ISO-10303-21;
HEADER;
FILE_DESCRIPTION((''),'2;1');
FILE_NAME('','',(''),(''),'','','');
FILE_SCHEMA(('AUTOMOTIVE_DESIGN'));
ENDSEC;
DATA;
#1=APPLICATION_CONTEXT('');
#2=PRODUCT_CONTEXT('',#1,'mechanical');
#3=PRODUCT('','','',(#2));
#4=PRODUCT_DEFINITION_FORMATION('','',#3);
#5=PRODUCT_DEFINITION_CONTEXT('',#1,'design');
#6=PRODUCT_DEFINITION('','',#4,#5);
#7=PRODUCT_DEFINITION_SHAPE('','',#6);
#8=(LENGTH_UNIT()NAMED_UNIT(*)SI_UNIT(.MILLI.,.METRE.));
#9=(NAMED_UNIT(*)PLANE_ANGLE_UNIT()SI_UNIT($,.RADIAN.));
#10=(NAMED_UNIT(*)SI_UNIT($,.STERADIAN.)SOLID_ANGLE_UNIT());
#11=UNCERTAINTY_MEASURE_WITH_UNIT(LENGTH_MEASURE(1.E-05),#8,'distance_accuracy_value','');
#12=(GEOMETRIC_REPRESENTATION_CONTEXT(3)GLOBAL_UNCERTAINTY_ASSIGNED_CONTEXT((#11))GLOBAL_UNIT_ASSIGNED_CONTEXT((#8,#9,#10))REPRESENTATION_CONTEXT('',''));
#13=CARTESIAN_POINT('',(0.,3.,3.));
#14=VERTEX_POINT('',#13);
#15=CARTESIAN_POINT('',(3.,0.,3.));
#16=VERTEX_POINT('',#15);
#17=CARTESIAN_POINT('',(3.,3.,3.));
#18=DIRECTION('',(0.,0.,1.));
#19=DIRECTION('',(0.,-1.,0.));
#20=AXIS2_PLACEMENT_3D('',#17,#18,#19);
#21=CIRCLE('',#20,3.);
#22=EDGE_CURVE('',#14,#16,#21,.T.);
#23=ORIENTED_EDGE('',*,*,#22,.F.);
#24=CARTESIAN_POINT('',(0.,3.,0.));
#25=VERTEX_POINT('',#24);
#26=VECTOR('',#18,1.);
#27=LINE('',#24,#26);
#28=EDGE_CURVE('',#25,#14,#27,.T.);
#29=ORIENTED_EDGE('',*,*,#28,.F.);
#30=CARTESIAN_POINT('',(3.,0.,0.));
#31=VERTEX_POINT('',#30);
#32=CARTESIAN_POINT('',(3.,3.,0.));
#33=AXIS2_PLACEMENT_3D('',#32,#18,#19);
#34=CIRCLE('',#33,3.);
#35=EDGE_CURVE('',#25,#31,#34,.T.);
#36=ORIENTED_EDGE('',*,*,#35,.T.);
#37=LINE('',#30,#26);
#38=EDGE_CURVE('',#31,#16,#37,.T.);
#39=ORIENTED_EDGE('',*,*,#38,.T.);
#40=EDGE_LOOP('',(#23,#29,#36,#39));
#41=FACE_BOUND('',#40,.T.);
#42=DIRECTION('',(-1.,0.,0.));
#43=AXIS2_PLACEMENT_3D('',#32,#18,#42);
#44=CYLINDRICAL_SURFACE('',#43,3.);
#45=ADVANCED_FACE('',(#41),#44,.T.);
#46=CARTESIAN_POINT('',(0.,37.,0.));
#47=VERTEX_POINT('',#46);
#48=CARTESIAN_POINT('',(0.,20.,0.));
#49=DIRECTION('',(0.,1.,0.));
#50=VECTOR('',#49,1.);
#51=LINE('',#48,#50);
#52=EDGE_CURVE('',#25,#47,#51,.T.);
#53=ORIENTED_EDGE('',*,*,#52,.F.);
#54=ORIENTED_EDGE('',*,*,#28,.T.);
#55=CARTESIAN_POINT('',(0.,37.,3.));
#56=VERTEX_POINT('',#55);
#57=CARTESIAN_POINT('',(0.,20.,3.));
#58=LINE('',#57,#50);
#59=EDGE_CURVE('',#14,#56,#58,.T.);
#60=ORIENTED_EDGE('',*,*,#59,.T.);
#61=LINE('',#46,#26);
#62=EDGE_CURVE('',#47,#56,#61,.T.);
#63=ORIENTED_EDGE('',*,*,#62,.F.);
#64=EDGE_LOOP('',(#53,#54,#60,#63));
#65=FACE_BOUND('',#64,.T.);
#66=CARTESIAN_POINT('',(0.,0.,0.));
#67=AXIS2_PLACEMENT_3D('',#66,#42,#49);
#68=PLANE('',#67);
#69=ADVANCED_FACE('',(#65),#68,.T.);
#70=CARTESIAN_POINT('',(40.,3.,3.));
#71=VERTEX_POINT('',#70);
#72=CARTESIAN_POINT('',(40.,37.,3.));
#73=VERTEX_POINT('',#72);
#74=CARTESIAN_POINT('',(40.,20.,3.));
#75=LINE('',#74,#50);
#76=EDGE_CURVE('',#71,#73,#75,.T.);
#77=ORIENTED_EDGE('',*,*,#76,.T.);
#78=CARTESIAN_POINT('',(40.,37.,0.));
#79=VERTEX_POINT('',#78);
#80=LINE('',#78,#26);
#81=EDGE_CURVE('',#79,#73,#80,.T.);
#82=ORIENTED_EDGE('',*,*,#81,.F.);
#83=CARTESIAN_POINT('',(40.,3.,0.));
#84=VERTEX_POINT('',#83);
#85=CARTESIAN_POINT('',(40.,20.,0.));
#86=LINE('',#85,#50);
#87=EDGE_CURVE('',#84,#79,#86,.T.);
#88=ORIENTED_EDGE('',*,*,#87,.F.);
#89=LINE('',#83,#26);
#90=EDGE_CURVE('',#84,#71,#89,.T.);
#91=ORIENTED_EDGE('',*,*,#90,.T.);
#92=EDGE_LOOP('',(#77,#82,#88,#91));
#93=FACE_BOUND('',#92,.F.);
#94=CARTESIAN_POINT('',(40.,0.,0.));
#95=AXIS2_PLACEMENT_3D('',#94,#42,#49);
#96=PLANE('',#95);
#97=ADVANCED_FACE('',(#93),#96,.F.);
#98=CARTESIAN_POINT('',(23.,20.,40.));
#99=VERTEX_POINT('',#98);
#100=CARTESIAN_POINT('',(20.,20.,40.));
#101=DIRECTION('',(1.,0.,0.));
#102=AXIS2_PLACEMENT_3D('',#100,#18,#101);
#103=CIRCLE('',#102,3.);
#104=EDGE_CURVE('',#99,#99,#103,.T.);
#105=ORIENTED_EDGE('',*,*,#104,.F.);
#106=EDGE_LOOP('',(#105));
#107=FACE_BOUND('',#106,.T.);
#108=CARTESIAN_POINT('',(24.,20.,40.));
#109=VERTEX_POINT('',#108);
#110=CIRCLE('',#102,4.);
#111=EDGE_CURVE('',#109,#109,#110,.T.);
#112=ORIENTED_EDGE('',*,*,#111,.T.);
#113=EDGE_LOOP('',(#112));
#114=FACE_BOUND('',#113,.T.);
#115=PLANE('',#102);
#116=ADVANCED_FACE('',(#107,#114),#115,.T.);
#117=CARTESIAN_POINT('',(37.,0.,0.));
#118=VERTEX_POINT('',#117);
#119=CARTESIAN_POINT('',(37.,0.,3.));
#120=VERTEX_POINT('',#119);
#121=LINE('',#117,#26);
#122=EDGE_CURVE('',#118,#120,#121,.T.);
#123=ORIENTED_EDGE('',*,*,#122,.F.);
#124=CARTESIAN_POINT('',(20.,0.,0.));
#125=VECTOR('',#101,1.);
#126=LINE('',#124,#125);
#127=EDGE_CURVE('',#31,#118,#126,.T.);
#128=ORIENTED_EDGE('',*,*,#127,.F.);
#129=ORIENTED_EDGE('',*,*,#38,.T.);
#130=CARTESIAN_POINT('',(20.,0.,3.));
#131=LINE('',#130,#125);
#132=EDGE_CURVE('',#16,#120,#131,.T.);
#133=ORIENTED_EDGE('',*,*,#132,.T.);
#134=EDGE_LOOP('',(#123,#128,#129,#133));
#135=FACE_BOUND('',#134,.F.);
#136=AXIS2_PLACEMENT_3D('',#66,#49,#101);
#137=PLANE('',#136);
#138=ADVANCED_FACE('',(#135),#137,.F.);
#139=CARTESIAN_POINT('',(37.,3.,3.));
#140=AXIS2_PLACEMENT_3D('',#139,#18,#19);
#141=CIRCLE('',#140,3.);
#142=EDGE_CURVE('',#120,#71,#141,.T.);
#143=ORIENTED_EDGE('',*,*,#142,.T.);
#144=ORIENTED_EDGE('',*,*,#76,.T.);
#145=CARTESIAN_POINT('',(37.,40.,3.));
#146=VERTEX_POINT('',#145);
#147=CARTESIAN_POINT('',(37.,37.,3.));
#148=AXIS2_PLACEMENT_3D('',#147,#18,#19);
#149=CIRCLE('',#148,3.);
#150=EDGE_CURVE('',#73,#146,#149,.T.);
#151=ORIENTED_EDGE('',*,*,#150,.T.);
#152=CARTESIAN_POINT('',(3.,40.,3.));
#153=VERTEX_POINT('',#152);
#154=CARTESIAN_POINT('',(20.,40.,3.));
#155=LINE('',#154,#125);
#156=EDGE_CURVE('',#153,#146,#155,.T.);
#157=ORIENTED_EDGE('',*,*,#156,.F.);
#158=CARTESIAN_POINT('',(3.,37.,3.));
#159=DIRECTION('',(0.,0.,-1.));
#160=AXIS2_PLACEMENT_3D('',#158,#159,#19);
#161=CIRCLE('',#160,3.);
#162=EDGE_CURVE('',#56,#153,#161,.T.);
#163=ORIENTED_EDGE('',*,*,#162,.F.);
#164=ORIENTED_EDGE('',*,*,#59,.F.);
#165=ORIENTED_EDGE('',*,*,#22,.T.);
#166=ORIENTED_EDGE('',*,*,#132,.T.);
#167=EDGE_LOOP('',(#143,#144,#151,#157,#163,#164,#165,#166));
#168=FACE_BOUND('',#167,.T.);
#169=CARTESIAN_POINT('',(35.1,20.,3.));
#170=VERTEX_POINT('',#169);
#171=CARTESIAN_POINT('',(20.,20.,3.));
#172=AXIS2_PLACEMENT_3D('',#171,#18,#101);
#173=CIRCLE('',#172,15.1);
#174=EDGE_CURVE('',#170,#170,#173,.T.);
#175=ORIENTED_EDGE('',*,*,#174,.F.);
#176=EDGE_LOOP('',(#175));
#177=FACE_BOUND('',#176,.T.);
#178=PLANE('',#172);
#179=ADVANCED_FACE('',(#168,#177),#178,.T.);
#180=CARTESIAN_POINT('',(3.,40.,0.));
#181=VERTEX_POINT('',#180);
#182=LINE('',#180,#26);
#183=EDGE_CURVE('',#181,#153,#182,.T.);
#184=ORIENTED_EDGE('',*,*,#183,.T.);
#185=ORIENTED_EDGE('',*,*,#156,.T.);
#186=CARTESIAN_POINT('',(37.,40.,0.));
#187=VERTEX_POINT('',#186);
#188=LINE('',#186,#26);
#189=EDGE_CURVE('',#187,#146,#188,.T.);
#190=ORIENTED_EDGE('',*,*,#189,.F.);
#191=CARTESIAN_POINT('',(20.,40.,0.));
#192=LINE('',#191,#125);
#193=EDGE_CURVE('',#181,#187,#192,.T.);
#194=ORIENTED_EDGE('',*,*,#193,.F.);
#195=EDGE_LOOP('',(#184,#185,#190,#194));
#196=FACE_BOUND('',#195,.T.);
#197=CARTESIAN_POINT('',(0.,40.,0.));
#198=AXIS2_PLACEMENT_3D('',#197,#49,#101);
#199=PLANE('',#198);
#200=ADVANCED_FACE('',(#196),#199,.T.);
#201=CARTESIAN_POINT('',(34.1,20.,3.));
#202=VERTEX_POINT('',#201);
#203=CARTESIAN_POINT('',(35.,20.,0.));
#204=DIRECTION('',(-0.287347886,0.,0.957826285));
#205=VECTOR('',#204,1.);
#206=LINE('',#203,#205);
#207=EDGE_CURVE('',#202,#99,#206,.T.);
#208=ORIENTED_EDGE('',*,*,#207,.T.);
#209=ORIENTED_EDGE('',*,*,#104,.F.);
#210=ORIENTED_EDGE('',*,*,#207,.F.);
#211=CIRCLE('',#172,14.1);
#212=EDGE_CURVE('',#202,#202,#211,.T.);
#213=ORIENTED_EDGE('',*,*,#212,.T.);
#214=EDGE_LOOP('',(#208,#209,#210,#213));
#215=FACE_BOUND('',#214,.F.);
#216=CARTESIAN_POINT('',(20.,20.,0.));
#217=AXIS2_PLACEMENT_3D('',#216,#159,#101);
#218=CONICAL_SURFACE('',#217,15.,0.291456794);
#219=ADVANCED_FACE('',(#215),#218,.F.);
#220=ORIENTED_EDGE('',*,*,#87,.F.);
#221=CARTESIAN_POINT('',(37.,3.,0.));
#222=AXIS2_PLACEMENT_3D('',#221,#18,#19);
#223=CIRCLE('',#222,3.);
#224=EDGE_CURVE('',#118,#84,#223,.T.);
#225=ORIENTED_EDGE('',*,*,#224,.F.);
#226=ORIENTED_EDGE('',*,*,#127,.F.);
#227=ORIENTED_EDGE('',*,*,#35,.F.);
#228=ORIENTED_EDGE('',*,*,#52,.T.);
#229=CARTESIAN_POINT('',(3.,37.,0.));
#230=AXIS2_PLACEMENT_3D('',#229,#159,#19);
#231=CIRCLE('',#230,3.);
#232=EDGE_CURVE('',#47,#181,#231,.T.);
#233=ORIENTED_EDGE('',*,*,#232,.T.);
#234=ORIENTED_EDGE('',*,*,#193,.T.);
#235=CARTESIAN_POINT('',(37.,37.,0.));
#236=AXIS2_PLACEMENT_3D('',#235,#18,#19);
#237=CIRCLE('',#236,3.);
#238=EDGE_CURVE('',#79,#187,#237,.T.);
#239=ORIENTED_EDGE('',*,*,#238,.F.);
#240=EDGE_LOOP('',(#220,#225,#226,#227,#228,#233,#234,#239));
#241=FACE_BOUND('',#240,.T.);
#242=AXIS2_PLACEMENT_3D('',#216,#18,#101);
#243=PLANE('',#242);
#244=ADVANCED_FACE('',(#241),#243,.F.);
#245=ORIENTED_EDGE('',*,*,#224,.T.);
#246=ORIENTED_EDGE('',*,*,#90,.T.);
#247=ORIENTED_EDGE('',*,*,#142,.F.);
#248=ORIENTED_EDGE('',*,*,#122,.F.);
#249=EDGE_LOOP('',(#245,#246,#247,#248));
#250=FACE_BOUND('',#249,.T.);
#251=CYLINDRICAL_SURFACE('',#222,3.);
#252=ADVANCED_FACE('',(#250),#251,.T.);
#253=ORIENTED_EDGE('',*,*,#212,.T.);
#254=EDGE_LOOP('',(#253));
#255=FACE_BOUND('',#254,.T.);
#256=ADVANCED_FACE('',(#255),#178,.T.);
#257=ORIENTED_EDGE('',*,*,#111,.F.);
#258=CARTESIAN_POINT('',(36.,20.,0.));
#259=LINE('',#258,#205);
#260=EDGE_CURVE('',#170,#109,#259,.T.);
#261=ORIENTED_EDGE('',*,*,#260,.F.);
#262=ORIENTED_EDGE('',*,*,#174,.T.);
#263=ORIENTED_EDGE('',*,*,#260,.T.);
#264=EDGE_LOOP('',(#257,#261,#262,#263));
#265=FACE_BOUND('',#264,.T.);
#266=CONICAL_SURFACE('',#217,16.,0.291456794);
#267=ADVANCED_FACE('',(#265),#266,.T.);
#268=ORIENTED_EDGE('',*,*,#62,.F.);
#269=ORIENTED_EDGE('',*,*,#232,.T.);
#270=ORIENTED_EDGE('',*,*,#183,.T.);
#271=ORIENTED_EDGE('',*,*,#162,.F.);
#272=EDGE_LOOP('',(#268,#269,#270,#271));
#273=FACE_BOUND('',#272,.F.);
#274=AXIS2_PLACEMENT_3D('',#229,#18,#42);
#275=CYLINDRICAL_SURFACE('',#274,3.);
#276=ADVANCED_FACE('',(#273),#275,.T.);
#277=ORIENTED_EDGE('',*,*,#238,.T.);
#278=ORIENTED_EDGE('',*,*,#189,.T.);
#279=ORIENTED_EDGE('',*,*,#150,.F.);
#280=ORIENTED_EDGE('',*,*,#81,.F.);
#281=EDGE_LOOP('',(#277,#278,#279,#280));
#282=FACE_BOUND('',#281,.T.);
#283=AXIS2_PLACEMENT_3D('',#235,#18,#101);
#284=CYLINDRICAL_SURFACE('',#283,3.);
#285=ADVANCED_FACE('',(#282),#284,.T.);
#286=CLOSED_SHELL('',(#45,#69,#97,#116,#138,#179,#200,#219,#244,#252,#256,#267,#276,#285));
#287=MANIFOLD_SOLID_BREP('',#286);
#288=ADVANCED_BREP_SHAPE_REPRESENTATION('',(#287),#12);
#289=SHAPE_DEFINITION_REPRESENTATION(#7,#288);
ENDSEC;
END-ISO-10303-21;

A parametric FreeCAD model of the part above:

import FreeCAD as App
import Part
import Sketcher

V = App.Vector
Q = App.Units.Quantity


def edges_at(feature, points):
    """Names of the edges that pass closest to the given points."""
    edges = feature.Shape.Edges
    near = lambda p: min(range(len(edges)), key=lambda i: edges[i].distToShape(Part.Vertex(*p))[0])
    return sorted({f"Edge{near(p) + 1}" for p in points})


def add_polygon(sketch, points):
    """Adds a closed chain of lines whose ends are joined by coincident constraints."""
    first, n = sketch.GeometryCount, len(points)
    for a, b in zip(points, points[1:] + points[:1]):
        sketch.addGeometry(Part.LineSegment(App.Vector(*a, 0), App.Vector(*b, 0)), False)
    for i in range(n):
        sketch.addConstraint(Sketcher.Constraint("Coincident", first + i, 2, first + (i + 1) % n, 1))

doc = App.newDocument("Part")
params = doc.addObject("Spreadsheet::Sheet", "Params")
for row, (alias, value) in enumerate([
    ("sketch1_width", "15 mm"),
    ("sketch1_width2", "3 mm"),
    ("sketch1_height", "40 mm"),
    ("revolution_angle", "360 deg"),
    ("sketch2_width", "16 mm"),
    ("sketch2_width2", "4 mm"),
    ("sketch2_height", "40 mm"),
    ("revolution2_angle", "360 deg"),
    ("sketch3_width", "40 mm"),
    ("pad1_length", "3 mm"),
    ("fillet_radius", "3 mm"),
], start=1):
    params.set(f"A{row}", alias)
    params.set(f"B{row}", "=" + value)
    params.setAlias(f"B{row}", alias)

body = doc.addObject("PartDesign::Body", "Body")

# Sketch on XZ plane
sketch1 = body.newObject("Sketcher::SketchObject", "Sketch")
sketch1.AttachmentSupport = (doc.getObject("XZ_Plane"), [""])
sketch1.MapMode = "FlatFace"
add_polygon(sketch1, [(0, 0), (15, 0), (3, 40), (0, 40)])  # lines 0-3
sketch1.addConstraint([
    Sketcher.Constraint("Horizontal", 0),
    Sketcher.Constraint("Horizontal", 2),
    Sketcher.Constraint("Vertical", 3),
    Sketcher.Constraint("Coincident", 3, 2, -1, 1),
    Sketcher.Constraint("DistanceX", 0, 1, 0, 2, Q("15 mm")),
    Sketcher.Constraint("DistanceX", 2, 2, 2, 1, Q("3 mm")),
    Sketcher.Constraint("DistanceY", 3, 2, 3, 1, Q("40 mm")),
])
sketch1.setExpression("Constraints[8]", "Params.sketch1_width")
sketch1.setExpression("Constraints[9]", "Params.sketch1_width2")
sketch1.setExpression("Constraints[10]", "Params.sketch1_height")
revolution = body.newObject("PartDesign::Revolution", "Revolution")
revolution.Profile = sketch1
revolution.ReferenceAxis = (sketch1, ["V_Axis"])
revolution.setExpression("Angle", "Params.revolution_angle")
body2 = doc.addObject("PartDesign::Body", "Body001")

# Sketch on XZ plane
sketch2 = body2.newObject("Sketcher::SketchObject", "Sketch001")
sketch2.AttachmentSupport = (doc.getObject("XZ_Plane001"), [""])
sketch2.MapMode = "FlatFace"
add_polygon(sketch2, [(0, 0), (16, 0), (4, 40), (0, 40)])  # lines 0-3
sketch2.addConstraint([
    Sketcher.Constraint("Horizontal", 0),
    Sketcher.Constraint("Horizontal", 2),
    Sketcher.Constraint("Vertical", 3),
    Sketcher.Constraint("Coincident", 3, 2, -1, 1),
    Sketcher.Constraint("DistanceX", 0, 1, 0, 2, Q("16 mm")),
    Sketcher.Constraint("DistanceX", 2, 2, 2, 1, Q("4 mm")),
    Sketcher.Constraint("DistanceY", 3, 2, 3, 1, Q("40 mm")),
])
sketch2.setExpression("Constraints[8]", "Params.sketch2_width")
sketch2.setExpression("Constraints[9]", "Params.sketch2_width2")
sketch2.setExpression("Constraints[10]", "Params.sketch2_height")
revolution2 = body2.newObject("PartDesign::Revolution", "Revolution001")
revolution2.Profile = sketch2
revolution2.ReferenceAxis = (sketch2, ["V_Axis"])
revolution2.setExpression("Angle", "Params.revolution2_angle")
doc.recompute()

boolean = body2.newObject("PartDesign::Boolean", "Boolean")
boolean.Type = "Cut"
boolean.addObjects([body])
body3 = doc.addObject("PartDesign::Body", "Body002")
doc.recompute()

body2.Placement = App.Placement(V(20, 20, 0), App.Rotation(V(0, 0, 1), 0))
boolean2 = body3.newObject("PartDesign::Boolean", "Boolean001")
boolean2.Type = "Fuse"
boolean2.addObjects([body2])
body4 = doc.addObject("PartDesign::Body", "Body003")

# Sketch on XY plane
sketch3 = body4.newObject("Sketcher::SketchObject", "Sketch002")
sketch3.AttachmentSupport = (doc.getObject("XY_Plane003"), [""])
sketch3.MapMode = "FlatFace"
add_polygon(sketch3, [(0, 40), (0, 0), (40, 0), (40, 40)])  # lines 0-3
sketch3.addConstraint([
    Sketcher.Constraint("Vertical", 0),
    Sketcher.Constraint("Horizontal", 1),
    Sketcher.Constraint("Vertical", 2),
    Sketcher.Constraint("Horizontal", 3),
    Sketcher.Constraint("Coincident", 0, 2, -1, 1),
    Sketcher.Constraint("Equal", 3, 0),
    Sketcher.Constraint("DistanceX", 1, 1, 1, 2, Q("40 mm")),
])
sketch3.setExpression("Constraints[10]", "Params.sketch3_width")
pad1 = body4.newObject("PartDesign::Pad", "Pad")
pad1.Profile = sketch3
pad1.setExpression("Length", "Params.pad1_length")
doc.recompute()

fillet = body4.newObject("PartDesign::Fillet", "Fillet")
fillet.Base = (pad1, edges_at(pad1, [
    (0, 0, 1.5),
    (0, 40, 1.5),
    (40, 0, 1.5),
    (40, 40, 1.5),
]))
fillet.setExpression("Radius", "Params.fillet_radius")
doc.recompute()

boolean3 = body4.newObject("PartDesign::Boolean", "Boolean002")
boolean3.Type = "Fuse"
boolean3.addObjects([body3])

doc.recompute()
